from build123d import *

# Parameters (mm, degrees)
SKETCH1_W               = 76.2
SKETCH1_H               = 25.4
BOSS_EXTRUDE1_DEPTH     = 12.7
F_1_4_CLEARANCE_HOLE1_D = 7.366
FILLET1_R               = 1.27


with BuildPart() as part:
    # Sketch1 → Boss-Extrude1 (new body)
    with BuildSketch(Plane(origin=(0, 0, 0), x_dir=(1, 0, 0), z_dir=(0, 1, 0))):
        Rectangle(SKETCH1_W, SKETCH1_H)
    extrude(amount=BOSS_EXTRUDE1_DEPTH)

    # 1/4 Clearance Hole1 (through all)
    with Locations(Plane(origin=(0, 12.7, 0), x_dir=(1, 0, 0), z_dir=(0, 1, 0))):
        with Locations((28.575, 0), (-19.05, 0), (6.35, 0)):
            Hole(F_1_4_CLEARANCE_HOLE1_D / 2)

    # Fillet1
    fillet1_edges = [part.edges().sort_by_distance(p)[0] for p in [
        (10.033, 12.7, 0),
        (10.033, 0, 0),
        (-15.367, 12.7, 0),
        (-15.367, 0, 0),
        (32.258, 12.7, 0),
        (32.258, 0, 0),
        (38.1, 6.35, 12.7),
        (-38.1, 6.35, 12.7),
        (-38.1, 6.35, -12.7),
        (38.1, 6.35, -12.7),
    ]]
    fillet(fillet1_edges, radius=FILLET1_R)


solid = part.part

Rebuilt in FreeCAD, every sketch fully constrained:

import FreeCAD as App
import Part
import Sketcher

V = App.Vector
Q = App.Units.Quantity


def edges_at(feature, points):
    """Names of the edges that pass closest to the given points."""
    edges = feature.Shape.Edges
    near = lambda p: min(range(len(edges)), key=lambda i: edges[i].distToShape(Part.Vertex(*p))[0])
    return sorted({f"Edge{near(p) + 1}" for p in points})

doc = App.newDocument("Part")
body = doc.addObject("PartDesign::Body", "Body")

sketch1 = body.newObject("Sketcher::SketchObject", "Sketch")
sketch1.AttachmentSupport = (doc.getObject("XZ_Plane"), [""])
sketch1.MapMode = "FlatFace"
sketch1.addGeometry(Part.LineSegment(V(-38, -13, 0), V(-38, 13, 0)), False)
sketch1.addGeometry(Part.LineSegment(V(-38, 13, 0), V(38, 13, 0)), False)
sketch1.addGeometry(Part.LineSegment(V(38, 13, 0), V(38, -13, 0)), False)
sketch1.addGeometry(Part.LineSegment(V(38, -13, 0), V(-38, -13, 0)), False)
sketch1.addConstraint(Sketcher.Constraint("Coincident", 0, 2, 1, 1))
sketch1.addConstraint(Sketcher.Constraint("Coincident", 1, 2, 2, 1))
sketch1.addConstraint(Sketcher.Constraint("Coincident", 2, 2, 3, 1))
sketch1.addConstraint(Sketcher.Constraint("Coincident", 3, 2, 0, 1))
sketch1.addConstraint(Sketcher.Constraint("Vertical", 0))
sketch1.addConstraint(Sketcher.Constraint("Horizontal", 1))
sketch1.addConstraint(Sketcher.Constraint("Vertical", 2))
sketch1.addConstraint(Sketcher.Constraint("Horizontal", 3))
sketch1.addConstraint(Sketcher.Constraint("Symmetric", 0, 2, 2, 2, -1, 1))
sketch1.addConstraint(Sketcher.Constraint("DistanceX", 1, 1, 1, 2, Q("3 in")))
sketch1.addConstraint(Sketcher.Constraint("DistanceY", 0, 1, 0, 2, Q("1 in")))
pad1 = body.newObject("PartDesign::Pad", "Pad")
pad1.Profile = sketch1
pad1.Length = Q("0.5 in")
pad1.Reversed = True

sketch2 = body.newObject("Sketcher::SketchObject", "Sketch001")
sketch2.AttachmentSupport = (doc.getObject("XZ_Plane"), [""])
sketch2.MapMode = "FlatFace"
sketch2.AttachmentOffset = App.Placement(V(0, 0, -0.5 * 25.4), App.Rotation())
sketch2.addGeometry(Part.Circle(V(28.6, 0, 0), V(0, 0, 1), 3.7), False)
sketch2.addGeometry(Part.Circle(V(-19.1, 0, 0), V(0, 0, 1), 3.7), False)
sketch2.addGeometry(Part.Circle(V(6.3, 0, 0), V(0, 0, 1), 3.7), False)
sketch2.addConstraint(Sketcher.Constraint("Equal", 0, 1))
sketch2.addConstraint(Sketcher.Constraint("Equal", 1, 2))
sketch2.addConstraint(Sketcher.Constraint("PointOnObject", 0, 3, -1))
sketch2.addConstraint(Sketcher.Constraint("PointOnObject", 1, 3, -1))
sketch2.addConstraint(Sketcher.Constraint("PointOnObject", 2, 3, -1))
sketch2.addConstraint(Sketcher.Constraint("Diameter", 0, Q("0.29 in")))
sketch2.addConstraint(Sketcher.Constraint("DistanceX", 1, 3, 2, 3, Q("1 in")))
sketch2.addConstraint(Sketcher.Constraint("DistanceX", 1, 3, -1, 1, Q("0.75 in")))
sketch2.addConstraint(Sketcher.Constraint("DistanceX", -1, 1, 0, 3, Q("1.125 in")))
doc.recompute()
hole = body.newObject("PartDesign::Hole", "Hole")
hole.Profile = sketch2
hole.ThreadType = "None"
hole.Diameter = Q("0.29 in")
hole.DepthType = "ThroughAll"
hole.Reversed = True
doc.recompute()

fillet = body.newObject("PartDesign::Fillet", "Fillet")
fillet.Base = (hole, edges_at(hole, [
    (10.033, 12.7, 0),
    (10.033, 0, 0),
    (-15.367, 12.7, 0),
    (-15.367, 0, 0),
    (32.258, 12.7, 0),
    (32.258, 0, 0),
    (38.1, 6.35, 12.7),
    (-38.1, 6.35, 12.7),
    (-38.1, 6.35, -12.7),
    (38.1, 6.35, -12.7),
]))
fillet.Radius = Q("0.05 in")

doc.recompute()
